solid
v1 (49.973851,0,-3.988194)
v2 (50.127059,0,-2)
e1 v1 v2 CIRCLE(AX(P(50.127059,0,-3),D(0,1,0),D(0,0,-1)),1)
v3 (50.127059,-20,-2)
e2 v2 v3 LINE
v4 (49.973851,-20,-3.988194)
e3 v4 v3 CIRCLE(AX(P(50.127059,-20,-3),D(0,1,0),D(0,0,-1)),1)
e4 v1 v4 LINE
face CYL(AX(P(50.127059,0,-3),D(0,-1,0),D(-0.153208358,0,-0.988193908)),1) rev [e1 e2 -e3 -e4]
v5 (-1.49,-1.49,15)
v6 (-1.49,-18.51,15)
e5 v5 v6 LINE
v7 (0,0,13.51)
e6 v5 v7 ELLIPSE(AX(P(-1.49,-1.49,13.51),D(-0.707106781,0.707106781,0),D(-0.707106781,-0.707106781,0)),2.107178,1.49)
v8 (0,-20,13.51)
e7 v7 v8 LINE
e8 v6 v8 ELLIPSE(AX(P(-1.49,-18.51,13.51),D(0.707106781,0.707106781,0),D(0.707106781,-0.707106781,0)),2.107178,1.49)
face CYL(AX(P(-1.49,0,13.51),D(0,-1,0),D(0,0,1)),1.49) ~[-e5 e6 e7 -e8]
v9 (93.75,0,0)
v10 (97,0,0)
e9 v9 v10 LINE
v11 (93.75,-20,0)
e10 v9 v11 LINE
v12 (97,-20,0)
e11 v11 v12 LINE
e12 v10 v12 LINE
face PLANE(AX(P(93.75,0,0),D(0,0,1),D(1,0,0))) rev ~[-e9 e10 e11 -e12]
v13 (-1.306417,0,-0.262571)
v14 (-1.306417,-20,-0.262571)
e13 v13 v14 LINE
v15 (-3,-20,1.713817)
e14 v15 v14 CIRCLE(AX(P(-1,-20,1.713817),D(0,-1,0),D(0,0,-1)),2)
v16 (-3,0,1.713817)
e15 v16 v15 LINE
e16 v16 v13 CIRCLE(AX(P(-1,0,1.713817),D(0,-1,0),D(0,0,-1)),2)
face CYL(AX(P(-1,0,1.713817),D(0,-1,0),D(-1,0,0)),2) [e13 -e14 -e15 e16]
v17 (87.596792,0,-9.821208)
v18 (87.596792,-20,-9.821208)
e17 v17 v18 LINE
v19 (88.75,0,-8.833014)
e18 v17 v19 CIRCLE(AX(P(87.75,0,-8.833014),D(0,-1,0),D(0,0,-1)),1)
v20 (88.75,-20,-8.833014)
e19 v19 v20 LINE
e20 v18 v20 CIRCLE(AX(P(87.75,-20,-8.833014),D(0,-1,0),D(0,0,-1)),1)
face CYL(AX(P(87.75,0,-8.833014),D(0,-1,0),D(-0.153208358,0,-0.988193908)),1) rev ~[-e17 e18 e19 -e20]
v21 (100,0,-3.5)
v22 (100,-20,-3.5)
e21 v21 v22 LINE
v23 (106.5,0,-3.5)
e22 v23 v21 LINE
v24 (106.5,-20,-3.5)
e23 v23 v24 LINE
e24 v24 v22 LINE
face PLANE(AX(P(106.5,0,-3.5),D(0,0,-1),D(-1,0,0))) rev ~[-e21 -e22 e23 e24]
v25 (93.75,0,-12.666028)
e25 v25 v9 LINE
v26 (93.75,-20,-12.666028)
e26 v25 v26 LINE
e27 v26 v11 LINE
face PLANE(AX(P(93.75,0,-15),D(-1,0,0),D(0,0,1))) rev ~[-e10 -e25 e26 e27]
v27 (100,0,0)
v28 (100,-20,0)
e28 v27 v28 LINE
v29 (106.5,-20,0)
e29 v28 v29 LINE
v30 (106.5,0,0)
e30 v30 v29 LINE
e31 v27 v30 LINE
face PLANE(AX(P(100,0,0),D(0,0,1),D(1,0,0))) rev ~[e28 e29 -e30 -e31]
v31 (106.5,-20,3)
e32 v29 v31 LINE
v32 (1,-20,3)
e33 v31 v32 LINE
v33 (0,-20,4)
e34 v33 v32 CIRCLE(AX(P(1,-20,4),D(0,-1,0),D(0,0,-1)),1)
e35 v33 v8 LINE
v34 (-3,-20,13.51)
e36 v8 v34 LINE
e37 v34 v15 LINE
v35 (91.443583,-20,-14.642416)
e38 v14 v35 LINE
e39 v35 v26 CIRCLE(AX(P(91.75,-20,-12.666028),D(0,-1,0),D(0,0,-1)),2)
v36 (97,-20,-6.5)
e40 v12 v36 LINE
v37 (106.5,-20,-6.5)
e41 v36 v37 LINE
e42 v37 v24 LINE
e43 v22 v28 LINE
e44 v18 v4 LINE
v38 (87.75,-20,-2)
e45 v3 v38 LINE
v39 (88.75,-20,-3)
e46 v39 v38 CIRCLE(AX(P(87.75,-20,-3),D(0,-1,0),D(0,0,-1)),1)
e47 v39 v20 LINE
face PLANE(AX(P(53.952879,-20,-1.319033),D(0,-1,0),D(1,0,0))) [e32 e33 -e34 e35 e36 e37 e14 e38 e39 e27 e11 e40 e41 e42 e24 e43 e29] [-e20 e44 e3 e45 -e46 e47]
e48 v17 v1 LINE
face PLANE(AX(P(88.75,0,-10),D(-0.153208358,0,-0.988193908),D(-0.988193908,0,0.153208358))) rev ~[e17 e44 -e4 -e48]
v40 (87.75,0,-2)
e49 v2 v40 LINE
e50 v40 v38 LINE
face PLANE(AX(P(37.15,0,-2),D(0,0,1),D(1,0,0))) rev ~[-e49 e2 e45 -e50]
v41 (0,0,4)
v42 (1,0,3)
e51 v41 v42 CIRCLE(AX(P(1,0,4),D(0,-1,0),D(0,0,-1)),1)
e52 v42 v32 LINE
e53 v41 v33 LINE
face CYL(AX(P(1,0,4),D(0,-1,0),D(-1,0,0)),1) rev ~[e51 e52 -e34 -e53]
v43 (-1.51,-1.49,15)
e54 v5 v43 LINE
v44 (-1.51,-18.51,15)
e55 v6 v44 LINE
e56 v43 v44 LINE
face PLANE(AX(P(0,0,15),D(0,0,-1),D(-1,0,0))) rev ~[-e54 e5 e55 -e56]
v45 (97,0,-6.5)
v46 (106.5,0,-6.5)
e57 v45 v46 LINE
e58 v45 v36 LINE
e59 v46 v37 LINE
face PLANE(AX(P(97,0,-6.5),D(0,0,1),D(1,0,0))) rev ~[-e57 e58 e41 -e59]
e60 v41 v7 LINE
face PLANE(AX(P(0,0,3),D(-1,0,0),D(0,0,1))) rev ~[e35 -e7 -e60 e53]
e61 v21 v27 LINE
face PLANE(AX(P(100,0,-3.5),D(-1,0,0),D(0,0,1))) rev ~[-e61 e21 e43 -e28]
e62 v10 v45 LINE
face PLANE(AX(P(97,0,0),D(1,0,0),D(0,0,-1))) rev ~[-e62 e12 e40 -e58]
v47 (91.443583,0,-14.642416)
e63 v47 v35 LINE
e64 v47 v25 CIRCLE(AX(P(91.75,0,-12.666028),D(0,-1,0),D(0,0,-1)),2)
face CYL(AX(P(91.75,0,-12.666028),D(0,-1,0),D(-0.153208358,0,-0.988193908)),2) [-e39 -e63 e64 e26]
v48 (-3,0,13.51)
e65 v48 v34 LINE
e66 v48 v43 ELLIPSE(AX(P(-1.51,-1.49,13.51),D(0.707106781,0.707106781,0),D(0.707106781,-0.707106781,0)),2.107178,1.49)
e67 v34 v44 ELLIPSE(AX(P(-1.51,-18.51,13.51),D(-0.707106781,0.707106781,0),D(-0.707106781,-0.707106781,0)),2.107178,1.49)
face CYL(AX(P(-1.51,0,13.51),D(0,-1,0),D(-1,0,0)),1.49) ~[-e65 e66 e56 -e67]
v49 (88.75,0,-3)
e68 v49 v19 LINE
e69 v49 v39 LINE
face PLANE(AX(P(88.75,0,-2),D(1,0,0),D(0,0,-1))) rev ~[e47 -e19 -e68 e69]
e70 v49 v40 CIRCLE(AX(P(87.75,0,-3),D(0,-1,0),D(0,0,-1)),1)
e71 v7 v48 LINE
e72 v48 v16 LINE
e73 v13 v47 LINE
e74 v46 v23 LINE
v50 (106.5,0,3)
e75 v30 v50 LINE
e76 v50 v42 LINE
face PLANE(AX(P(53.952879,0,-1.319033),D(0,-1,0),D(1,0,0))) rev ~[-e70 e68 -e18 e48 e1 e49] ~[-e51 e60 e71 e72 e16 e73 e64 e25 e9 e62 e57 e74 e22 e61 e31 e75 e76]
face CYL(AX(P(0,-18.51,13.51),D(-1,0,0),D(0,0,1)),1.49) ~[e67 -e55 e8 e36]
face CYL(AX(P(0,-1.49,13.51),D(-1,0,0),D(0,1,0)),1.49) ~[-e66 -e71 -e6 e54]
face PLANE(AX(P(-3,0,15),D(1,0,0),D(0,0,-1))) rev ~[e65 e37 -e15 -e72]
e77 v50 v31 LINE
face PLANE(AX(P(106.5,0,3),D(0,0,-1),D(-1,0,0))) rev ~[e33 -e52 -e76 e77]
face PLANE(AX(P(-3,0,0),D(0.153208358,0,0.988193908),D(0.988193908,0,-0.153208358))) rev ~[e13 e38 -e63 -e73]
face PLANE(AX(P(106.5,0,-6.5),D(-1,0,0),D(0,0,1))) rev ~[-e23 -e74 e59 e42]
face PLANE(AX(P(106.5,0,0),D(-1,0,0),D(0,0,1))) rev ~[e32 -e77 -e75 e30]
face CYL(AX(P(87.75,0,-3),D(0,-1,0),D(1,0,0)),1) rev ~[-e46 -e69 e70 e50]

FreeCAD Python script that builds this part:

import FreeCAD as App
import Part
import Sketcher

V = App.Vector
Q = App.Units.Quantity


def edges_at(feature, points):
    """Names of the edges that pass closest to the given points."""
    edges = feature.Shape.Edges
    near = lambda p: min(range(len(edges)), key=lambda i: edges[i].distToShape(Part.Vertex(*p))[0])
    return sorted({f"Edge{near(p) + 1}" for p in points})


def add_polygon(sketch, points):
    """Adds a closed chain of lines whose ends are joined by coincident constraints."""
    first, n = sketch.GeometryCount, len(points)
    for a, b in zip(points, points[1:] + points[:1]):
        sketch.addGeometry(Part.LineSegment(App.Vector(*a, 0), App.Vector(*b, 0)), False)
    for i in range(n):
        sketch.addConstraint(Sketcher.Constraint("Coincident", first + i, 2, first + (i + 1) % n, 1))

doc = App.newDocument("Part")
body = doc.addObject("PartDesign::Body", "Body")

sketch1 = doc.addObject("Sketcher::SketchObject", "Sketch")
body.addObject(sketch1)
sketch1.AttachmentSupport = (doc.XZ_Plane, [""])
sketch1.MapMode = "FlatFace"
add_polygon(sketch1, [(0, 15), (-3, 15), (-3, 0), (93.8, -15), (93.8, 0), (97, 0), (97, -6.5), (106.5, -6.5), (106.5, -3.5), (100, -3.5), (100, 0), (106.5, 0), (106.5, 3), (0, 3)])
add_polygon(sketch1, [(88.8, -10), (37.1, -2), (88.8, -2)])
sketch1.addConstraint([
    Sketcher.Constraint("Horizontal", 0),
    Sketcher.Constraint("Vertical", 1),
    Sketcher.Constraint("Vertical", 3),
    Sketcher.Constraint("Horizontal", 4),
    Sketcher.Constraint("Vertical", 5),
    Sketcher.Constraint("Horizontal", 6),
    Sketcher.Constraint("Vertical", 7),
    Sketcher.Constraint("Horizontal", 8),
    Sketcher.Constraint("Vertical", 9),
    Sketcher.Constraint("Horizontal", 10),
    Sketcher.Constraint("Vertical", 11),
    Sketcher.Constraint("Horizontal", 12),
    Sketcher.Constraint("Vertical", 13),
    Sketcher.Constraint("Horizontal", 15),
    Sketcher.Constraint("Vertical", 16),
    Sketcher.Constraint("PointOnObject", 1, 2, -1),
    Sketcher.Constraint("PointOnObject", 3, 2, -1),
    Sketcher.Constraint("PointOnObject", 9, 2, -1),
    Sketcher.Constraint("PointOnObject", 12, 2, -2),
    Sketcher.Constraint("Parallel", 2, 14),
    Sketcher.Constraint("Vertical", 7, 2, 10, 2),
    Sketcher.Constraint("Equal", 1, 3),
    Sketcher.Constraint("Equal", 10, 5),
    Sketcher.Constraint("Equal", 0, 7),
    Sketcher.Constraint("Equal", 7, 11),
    Sketcher.Constraint("DistanceX", 0, 2, 0, 1, Q("3 mm")),
    Sketcher.Constraint("DistanceY", 1, 2, 1, 1, Q("15 mm")),
    Sketcher.Constraint("DistanceY", 16, 2, 16, 1, Q("8 mm")),
    Sketcher.Constraint("DistanceX", 6, 1, 6, 2, Q("9.5 mm")),
    Sketcher.Constraint("DistanceX", 8, 2, 8, 1, Q("6.5 mm")),
    Sketcher.Constraint("DistanceX", 12, 2, 12, 1, Q("106.5 mm")),
    Sketcher.Constraint("DistanceX", 15, 1, 15, 2, Q("51.6 mm")),
    Sketcher.Constraint("DistanceY", 14, 2, -1, 1, Q("2 mm")),
    Sketcher.Constraint("DistanceX", 15, 2, 3, 2, Q("5 mm")),
])
pad1 = doc.addObject("PartDesign::Pad", "Pad")
body.addObject(pad1)
pad1.Profile = sketch1
pad1.Length = 20
doc.recompute()

fillet = doc.addObject("PartDesign::Fillet", "Fillet")
body.addObject(fillet)
fillet.Base = (pad1, edges_at(pad1, [(-3, -10, 0), (93.75, -10, -15)]))
fillet.Radius = 2
doc.recompute()

fillet2 = doc.addObject("PartDesign::Fillet", "Fillet001")
body.addObject(fillet2)
fillet2.Base = (fillet, edges_at(fillet, [
    (0, -10, 15),
    (-3, -10, 15),
    (-1.5, 0, 15),
    (-1.5, -20, 15),
]))
fillet2.Radius = 1.49
doc.recompute()

fillet3 = doc.addObject("PartDesign::Fillet", "Fillet002")
body.addObject(fillet3)
fillet3.Base = (fillet2, edges_at(fillet2, [(37.15, -10, -2), (88.75, -10, -2), (88.75, -10, -10)]))
fillet3.Radius = 1
doc.recompute()

fillet4 = doc.addObject("PartDesign::Fillet", "Fillet003")
body.addObject(fillet4)
fillet4.Base = (fillet3, edges_at(fillet3, [(0, -10, 3)]))
fillet4.Radius = 1

doc.recompute()
